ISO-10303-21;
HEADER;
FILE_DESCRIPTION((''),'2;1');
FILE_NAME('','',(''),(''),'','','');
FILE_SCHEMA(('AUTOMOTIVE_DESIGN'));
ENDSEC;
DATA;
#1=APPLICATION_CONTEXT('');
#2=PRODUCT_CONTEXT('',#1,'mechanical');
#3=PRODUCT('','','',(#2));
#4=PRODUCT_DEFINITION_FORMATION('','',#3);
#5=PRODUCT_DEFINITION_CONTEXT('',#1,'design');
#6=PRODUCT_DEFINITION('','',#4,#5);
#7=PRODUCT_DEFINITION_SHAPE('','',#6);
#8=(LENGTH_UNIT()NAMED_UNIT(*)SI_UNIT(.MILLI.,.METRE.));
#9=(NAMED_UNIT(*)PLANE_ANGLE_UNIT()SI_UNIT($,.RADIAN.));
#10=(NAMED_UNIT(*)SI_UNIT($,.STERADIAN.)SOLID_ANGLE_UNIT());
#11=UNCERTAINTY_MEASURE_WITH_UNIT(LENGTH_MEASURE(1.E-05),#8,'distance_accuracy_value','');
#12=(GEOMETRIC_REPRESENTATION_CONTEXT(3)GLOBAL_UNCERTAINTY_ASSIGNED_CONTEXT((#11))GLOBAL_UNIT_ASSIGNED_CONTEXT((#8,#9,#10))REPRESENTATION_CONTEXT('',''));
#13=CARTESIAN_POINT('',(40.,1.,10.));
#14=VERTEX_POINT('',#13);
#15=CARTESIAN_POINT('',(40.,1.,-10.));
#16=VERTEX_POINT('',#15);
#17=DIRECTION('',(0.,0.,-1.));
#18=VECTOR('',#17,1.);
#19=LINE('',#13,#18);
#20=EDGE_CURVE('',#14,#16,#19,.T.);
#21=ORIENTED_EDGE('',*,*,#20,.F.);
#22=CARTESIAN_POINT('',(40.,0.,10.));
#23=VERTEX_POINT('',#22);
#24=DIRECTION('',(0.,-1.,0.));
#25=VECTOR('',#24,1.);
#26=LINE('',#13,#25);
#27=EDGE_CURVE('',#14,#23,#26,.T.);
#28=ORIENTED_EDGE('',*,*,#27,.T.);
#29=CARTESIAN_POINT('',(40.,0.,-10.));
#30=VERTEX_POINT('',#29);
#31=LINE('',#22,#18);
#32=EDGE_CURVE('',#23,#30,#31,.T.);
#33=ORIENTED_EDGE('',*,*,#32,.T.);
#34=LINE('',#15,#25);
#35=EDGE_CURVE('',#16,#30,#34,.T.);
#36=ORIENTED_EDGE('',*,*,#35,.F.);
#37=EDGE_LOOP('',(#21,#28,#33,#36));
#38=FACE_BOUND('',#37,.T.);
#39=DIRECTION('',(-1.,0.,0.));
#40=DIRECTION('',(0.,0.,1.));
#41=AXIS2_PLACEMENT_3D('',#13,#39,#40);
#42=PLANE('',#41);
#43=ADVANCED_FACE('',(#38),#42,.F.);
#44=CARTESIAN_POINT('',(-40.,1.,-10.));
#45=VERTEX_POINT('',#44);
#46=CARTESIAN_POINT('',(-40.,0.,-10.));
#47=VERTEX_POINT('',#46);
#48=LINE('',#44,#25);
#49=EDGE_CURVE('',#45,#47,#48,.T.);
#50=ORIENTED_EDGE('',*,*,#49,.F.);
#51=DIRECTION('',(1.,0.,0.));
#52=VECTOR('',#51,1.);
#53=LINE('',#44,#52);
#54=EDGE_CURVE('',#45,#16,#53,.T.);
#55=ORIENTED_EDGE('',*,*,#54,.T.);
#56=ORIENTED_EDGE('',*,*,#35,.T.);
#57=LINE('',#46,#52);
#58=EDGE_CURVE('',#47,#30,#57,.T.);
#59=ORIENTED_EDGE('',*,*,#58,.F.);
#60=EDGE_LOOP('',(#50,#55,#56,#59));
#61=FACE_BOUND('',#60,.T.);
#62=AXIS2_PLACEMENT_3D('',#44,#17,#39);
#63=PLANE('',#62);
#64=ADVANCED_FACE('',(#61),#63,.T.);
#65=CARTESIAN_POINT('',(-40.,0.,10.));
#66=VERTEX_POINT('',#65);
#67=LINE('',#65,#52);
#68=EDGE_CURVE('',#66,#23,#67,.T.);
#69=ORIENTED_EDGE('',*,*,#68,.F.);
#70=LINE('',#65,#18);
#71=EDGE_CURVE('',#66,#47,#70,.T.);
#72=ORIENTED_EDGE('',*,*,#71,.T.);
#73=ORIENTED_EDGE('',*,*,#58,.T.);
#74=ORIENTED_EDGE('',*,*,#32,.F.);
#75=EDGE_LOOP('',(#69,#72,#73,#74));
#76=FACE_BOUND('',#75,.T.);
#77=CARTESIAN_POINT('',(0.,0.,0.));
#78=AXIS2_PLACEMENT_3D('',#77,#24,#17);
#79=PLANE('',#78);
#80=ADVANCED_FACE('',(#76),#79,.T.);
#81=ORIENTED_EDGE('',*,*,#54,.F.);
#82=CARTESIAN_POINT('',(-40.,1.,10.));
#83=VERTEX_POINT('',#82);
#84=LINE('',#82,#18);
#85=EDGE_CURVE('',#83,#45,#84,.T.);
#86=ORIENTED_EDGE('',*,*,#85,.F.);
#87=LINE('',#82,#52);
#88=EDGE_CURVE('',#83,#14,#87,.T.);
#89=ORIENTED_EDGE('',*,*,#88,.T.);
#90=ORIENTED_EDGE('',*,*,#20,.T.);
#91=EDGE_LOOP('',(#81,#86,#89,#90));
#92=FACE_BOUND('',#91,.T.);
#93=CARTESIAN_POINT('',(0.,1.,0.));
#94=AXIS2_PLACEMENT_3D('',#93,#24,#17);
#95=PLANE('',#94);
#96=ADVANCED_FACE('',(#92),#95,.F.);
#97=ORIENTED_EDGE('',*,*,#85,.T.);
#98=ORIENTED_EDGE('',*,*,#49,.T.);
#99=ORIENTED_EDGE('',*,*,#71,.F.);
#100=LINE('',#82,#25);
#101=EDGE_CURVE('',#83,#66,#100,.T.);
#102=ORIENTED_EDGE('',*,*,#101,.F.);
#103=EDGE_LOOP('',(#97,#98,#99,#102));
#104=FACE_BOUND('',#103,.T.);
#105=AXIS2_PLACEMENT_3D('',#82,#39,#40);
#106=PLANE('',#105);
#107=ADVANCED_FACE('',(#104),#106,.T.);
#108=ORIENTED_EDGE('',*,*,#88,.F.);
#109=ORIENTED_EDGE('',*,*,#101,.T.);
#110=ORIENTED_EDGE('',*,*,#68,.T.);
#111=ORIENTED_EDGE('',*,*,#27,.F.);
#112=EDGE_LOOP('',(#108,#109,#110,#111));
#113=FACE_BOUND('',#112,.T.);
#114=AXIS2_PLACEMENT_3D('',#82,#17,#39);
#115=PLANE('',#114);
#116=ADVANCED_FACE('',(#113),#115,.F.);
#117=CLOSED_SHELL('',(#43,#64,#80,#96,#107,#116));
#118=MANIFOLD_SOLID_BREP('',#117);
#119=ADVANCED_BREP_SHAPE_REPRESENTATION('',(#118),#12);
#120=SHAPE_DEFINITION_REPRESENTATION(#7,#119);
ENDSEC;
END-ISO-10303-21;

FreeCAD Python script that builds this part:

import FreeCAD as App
import Part
import Sketcher
from FreeCAD import Vector
Q = App.Units.Quantity

doc = App.newDocument("Part")
body = doc.addObject("PartDesign::Body", "Body")

sketch1 = body.newObject("Sketcher::SketchObject", "Sketch")
sketch1.AttachmentSupport = (doc.getObject("XZ_Plane"), [""])
sketch1.MapMode = "FlatFace"
sketch1.addGeometry([
    Part.LineSegment(Vector(-40, -10, 0), Vector(-40, 10, 0)),
    Part.LineSegment(Vector(-40, 10, 0), Vector(40, 10, 0)),
    Part.LineSegment(Vector(40, 10, 0), Vector(40, -10, 0)),
    Part.LineSegment(Vector(40, -10, 0), Vector(-40, -10, 0)),
], False)
sketch1.addConstraint([
    Sketcher.Constraint("Coincident", 0, 2, 1, 1),
    Sketcher.Constraint("Coincident", 1, 2, 2, 1),
    Sketcher.Constraint("Coincident", 2, 2, 3, 1),
    Sketcher.Constraint("Coincident", 3, 2, 0, 1),
    Sketcher.Constraint("Vertical", 0),
    Sketcher.Constraint("Horizontal", 1),
    Sketcher.Constraint("Vertical", 2),
    Sketcher.Constraint("Horizontal", 3),
    Sketcher.Constraint("Symmetric", 0, 2, 2, 2, -1, 1),
    Sketcher.Constraint("DistanceX", 1, 1, 1, 2, Q("80 mm")),
    Sketcher.Constraint("DistanceY", 0, 1, 0, 2, Q("20 mm")),
])
pad1 = body.newObject("PartDesign::Pad", "Pad")
pad1.Profile = sketch1
pad1.Length = 1
pad1.Reversed = True

doc.recompute()
